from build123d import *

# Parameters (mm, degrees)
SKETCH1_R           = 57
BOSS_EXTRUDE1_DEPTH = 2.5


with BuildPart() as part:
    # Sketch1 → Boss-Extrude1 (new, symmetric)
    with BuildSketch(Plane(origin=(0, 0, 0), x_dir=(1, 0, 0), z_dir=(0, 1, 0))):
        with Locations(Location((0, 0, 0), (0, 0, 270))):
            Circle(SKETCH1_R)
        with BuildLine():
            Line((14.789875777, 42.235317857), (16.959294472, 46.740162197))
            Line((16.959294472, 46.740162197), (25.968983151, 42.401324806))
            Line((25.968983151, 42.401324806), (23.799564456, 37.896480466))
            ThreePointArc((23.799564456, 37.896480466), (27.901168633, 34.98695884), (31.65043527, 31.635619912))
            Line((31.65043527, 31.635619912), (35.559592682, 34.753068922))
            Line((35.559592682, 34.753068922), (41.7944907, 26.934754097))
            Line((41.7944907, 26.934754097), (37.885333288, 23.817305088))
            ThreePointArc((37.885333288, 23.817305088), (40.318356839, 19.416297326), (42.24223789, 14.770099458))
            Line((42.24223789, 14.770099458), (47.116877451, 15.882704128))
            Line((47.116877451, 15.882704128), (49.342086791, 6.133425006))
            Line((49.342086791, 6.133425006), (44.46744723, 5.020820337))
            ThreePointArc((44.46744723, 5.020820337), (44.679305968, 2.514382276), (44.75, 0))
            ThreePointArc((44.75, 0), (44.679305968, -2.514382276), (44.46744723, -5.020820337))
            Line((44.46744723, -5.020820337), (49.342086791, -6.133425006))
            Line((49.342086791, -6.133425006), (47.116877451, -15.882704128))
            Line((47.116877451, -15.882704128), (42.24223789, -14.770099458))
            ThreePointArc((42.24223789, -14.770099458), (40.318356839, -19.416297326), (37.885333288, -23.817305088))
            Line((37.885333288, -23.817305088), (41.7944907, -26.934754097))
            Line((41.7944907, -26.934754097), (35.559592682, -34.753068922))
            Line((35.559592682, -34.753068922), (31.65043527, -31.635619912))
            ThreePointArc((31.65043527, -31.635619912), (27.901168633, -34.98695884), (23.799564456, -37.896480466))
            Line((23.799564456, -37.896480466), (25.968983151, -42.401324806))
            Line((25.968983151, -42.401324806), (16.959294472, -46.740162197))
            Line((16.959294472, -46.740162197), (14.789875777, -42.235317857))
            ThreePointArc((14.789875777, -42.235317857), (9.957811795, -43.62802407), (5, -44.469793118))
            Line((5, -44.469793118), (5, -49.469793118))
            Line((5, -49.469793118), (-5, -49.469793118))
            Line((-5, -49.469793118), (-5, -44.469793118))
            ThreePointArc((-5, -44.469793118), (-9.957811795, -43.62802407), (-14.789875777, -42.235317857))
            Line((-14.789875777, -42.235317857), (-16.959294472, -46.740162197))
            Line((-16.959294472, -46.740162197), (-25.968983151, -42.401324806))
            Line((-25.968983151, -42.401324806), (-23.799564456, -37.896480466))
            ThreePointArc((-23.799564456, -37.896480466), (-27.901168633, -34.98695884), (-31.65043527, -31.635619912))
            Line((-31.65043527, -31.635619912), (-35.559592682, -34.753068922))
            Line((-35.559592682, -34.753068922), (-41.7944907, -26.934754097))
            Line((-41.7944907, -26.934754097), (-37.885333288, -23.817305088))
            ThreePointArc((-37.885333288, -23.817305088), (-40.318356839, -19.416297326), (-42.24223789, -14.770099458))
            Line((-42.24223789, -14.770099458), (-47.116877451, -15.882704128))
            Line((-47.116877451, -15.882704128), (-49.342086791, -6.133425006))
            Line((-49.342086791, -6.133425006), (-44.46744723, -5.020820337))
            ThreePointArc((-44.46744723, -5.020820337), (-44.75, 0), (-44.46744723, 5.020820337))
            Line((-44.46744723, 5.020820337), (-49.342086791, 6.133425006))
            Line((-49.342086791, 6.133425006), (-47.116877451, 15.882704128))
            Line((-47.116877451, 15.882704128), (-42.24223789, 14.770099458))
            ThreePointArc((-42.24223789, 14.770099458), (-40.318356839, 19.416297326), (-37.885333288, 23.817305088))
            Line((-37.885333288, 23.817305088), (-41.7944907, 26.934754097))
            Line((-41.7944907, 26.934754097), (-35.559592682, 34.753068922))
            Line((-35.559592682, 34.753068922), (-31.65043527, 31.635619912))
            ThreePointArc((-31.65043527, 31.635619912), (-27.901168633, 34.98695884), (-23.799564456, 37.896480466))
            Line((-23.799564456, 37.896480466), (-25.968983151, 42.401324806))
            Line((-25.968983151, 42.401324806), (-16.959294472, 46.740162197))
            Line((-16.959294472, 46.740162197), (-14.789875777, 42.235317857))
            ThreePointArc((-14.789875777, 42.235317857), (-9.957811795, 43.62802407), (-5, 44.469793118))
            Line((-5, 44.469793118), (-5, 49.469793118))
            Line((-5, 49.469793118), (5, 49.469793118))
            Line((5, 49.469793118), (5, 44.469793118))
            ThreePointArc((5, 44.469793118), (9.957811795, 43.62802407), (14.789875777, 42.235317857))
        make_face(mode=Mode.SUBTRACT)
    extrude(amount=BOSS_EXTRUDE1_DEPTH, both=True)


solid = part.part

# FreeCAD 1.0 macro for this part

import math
import FreeCAD as App
import Part
import Sketcher
from FreeCAD import Vector

doc = App.newDocument("Part")
body = doc.addObject("PartDesign::Body", "Body")

# Sketch on XZ plane
sketch1 = doc.addObject("Sketcher::SketchObject", "Sketch")
body.addObject(sketch1)
sketch1.AttachmentSupport = (doc.XZ_Plane, [""])
sketch1.MapMode = "FlatFace"
sketch1.addGeometry([
    Part.Circle(Vector(0, 0, 0), Vector(0, 0, 1), 57),  # 0
    Part.ArcOfCircle(Part.Circle(Vector(0, 0, 0), Vector(0, 0, 1), 44.75), math.radians(-83.584842), math.radians(-70.700873)),  # 1
    Part.LineSegment(Vector(14.789876, -42.235318, 0), Vector(16.959294, -46.740162, 0)),  # 2
    Part.LineSegment(Vector(16.959294, -46.740162, 0), Vector(25.968983, -42.401325, 0)),  # 3
    Part.LineSegment(Vector(25.968983, -42.401325, 0), Vector(23.799564, -37.89648, 0)),  # 4
    Part.ArcOfCircle(Part.Circle(Vector(0, 0, 0), Vector(0, 0, 1), 44.75), math.radians(-57.870556), math.radians(-44.986587)),  # 5
    Part.LineSegment(Vector(31.650435, -31.63562, 0), Vector(35.559593, -34.753069, 0)),  # 6
    Part.LineSegment(Vector(35.559593, -34.753069, 0), Vector(41.794491, -26.934754, 0)),  # 7
    Part.LineSegment(Vector(41.794491, -26.934754, 0), Vector(37.885333, -23.817305, 0)),  # 8
    Part.ArcOfCircle(Part.Circle(Vector(0, 0, 0), Vector(0, 0, 1), 44.75), math.radians(-32.15627), math.radians(-19.272301)),  # 9
    Part.LineSegment(Vector(42.242238, -14.770099, 0), Vector(47.116877, -15.882704, 0)),  # 10
    Part.LineSegment(Vector(47.116877, -15.882704, 0), Vector(49.342087, -6.133425, 0)),  # 11
    Part.LineSegment(Vector(49.342087, -6.133425, 0), Vector(44.467447, -5.02082, 0)),  # 12
    Part.ArcOfCircle(Part.Circle(Vector(0, 0, 0), Vector(0, 0, 1), 44.75), math.radians(-6.441984), math.radians(0)),  # 13
    Part.ArcOfCircle(Part.Circle(Vector(0, 0, 0), Vector(0, 0, 1), 44.75), math.radians(0), math.radians(6.441984)),  # 14
    Part.LineSegment(Vector(44.467447, 5.02082, 0), Vector(49.342087, 6.133425, 0)),  # 15
    Part.LineSegment(Vector(49.342087, 6.133425, 0), Vector(47.116877, 15.882704, 0)),  # 16
    Part.LineSegment(Vector(47.116877, 15.882704, 0), Vector(42.242238, 14.770099, 0)),  # 17
    Part.ArcOfCircle(Part.Circle(Vector(0, 0, 0), Vector(0, 0, 1), 44.75), math.radians(19.272301), math.radians(32.15627)),  # 18
    Part.LineSegment(Vector(37.885333, 23.817305, 0), Vector(41.794491, 26.934754, 0)),  # 19
    Part.LineSegment(Vector(41.794491, 26.934754, 0), Vector(35.559593, 34.753069, 0)),  # 20
    Part.LineSegment(Vector(35.559593, 34.753069, 0), Vector(31.650435, 31.63562, 0)),  # 21
    Part.ArcOfCircle(Part.Circle(Vector(0, 0, 0), Vector(0, 0, 1), 44.75), math.radians(44.986587), math.radians(57.870556)),  # 22
    Part.LineSegment(Vector(23.799564, 37.89648, 0), Vector(25.968983, 42.401325, 0)),  # 23
    Part.LineSegment(Vector(25.968983, 42.401325, 0), Vector(16.959294, 46.740162, 0)),  # 24
    Part.LineSegment(Vector(16.959294, 46.740162, 0), Vector(14.789876, 42.235318, 0)),  # 25
    Part.ArcOfCircle(Part.Circle(Vector(0, 0, 0), Vector(0, 0, 1), 44.75), math.radians(70.700873), math.radians(83.584842)),  # 26
    Part.LineSegment(Vector(5, 44.469793, 0), Vector(5, 49.469793, 0)),  # 27
    Part.LineSegment(Vector(5, 49.469793, 0), Vector(-5, 49.469793, 0)),  # 28
    Part.LineSegment(Vector(-5, 49.469793, 0), Vector(-5, 44.469793, 0)),  # 29
    Part.ArcOfCircle(Part.Circle(Vector(0, 0, 0), Vector(0, 0, 1), 44.75), math.radians(96.415158), math.radians(109.299127)),  # 30
    Part.LineSegment(Vector(-14.789876, 42.235318, 0), Vector(-16.959294, 46.740162, 0)),  # 31
    Part.LineSegment(Vector(-16.959294, 46.740162, 0), Vector(-25.968983, 42.401325, 0)),  # 32
    Part.LineSegment(Vector(-25.968983, 42.401325, 0), Vector(-23.799564, 37.89648, 0)),  # 33
    Part.ArcOfCircle(Part.Circle(Vector(0, 0, 0), Vector(0, 0, 1), 44.75), math.radians(122.129444), math.radians(135.013413)),  # 34
    Part.LineSegment(Vector(-31.650435, 31.63562, 0), Vector(-35.559593, 34.753069, 0)),  # 35
    Part.LineSegment(Vector(-35.559593, 34.753069, 0), Vector(-41.794491, 26.934754, 0)),  # 36
    Part.LineSegment(Vector(-41.794491, 26.934754, 0), Vector(-37.885333, 23.817305, 0)),  # 37
    Part.ArcOfCircle(Part.Circle(Vector(0, 0, 0), Vector(0, 0, 1), 44.75), math.radians(147.84373), math.radians(160.727699)),  # 38
    Part.LineSegment(Vector(-42.242238, 14.770099, 0), Vector(-47.116877, 15.882704, 0)),  # 39
    Part.LineSegment(Vector(-47.116877, 15.882704, 0), Vector(-49.342087, 6.133425, 0)),  # 40
    Part.LineSegment(Vector(-49.342087, 6.133425, 0), Vector(-44.467447, 5.02082, 0)),  # 41
    Part.ArcOfCircle(Part.Circle(Vector(0, 0, 0), Vector(0, 0, 1), 44.75), math.radians(173.558016), math.radians(186.441984)),  # 42
    Part.LineSegment(Vector(-44.467447, -5.02082, 0), Vector(-49.342087, -6.133425, 0)),  # 43
    Part.LineSegment(Vector(-49.342087, -6.133425, 0), Vector(-47.116877, -15.882704, 0)),  # 44
    Part.LineSegment(Vector(-47.116877, -15.882704, 0), Vector(-42.242238, -14.770099, 0)),  # 45
    Part.ArcOfCircle(Part.Circle(Vector(0, 0, 0), Vector(0, 0, 1), 44.75), math.radians(-160.727699), math.radians(-147.84373)),  # 46
    Part.LineSegment(Vector(-37.885333, -23.817305, 0), Vector(-41.794491, -26.934754, 0)),  # 47
    Part.LineSegment(Vector(-41.794491, -26.934754, 0), Vector(-35.559593, -34.753069, 0)),  # 48
    Part.LineSegment(Vector(-35.559593, -34.753069, 0), Vector(-31.650435, -31.63562, 0)),  # 49
    Part.ArcOfCircle(Part.Circle(Vector(0, 0, 0), Vector(0, 0, 1), 44.75), math.radians(-135.013413), math.radians(-122.129444)),  # 50
    Part.LineSegment(Vector(-23.799564, -37.89648, 0), Vector(-25.968983, -42.401325, 0)),  # 51
    Part.LineSegment(Vector(-25.968983, -42.401325, 0), Vector(-16.959294, -46.740162, 0)),  # 52
    Part.LineSegment(Vector(-16.959294, -46.740162, 0), Vector(-14.789876, -42.235318, 0)),  # 53
    Part.ArcOfCircle(Part.Circle(Vector(0, 0, 0), Vector(0, 0, 1), 44.75), math.radians(-109.299127), math.radians(-96.415158)),  # 54
    Part.LineSegment(Vector(-5, -44.469793, 0), Vector(-5, -49.469793, 0)),  # 55
    Part.LineSegment(Vector(-5, -49.469793, 0), Vector(5, -49.469793, 0)),  # 56
    Part.LineSegment(Vector(5, -49.469793, 0), Vector(5, -44.469793, 0)),  # 57
], False)
sketch1.addConstraint([
    Sketcher.Constraint("Coincident", 1, 2, 2, 1),
    Sketcher.Constraint("Coincident", 2, 2, 3, 1),
    Sketcher.Constraint("Coincident", 3, 2, 4, 1),
    Sketcher.Constraint("Coincident", 4, 2, 5, 1),
    Sketcher.Constraint("Coincident", 5, 2, 6, 1),
    Sketcher.Constraint("Coincident", 6, 2, 7, 1),
    Sketcher.Constraint("Coincident", 7, 2, 8, 1),
    Sketcher.Constraint("Coincident", 8, 2, 9, 1),
    Sketcher.Constraint("Coincident", 9, 2, 10, 1),
    Sketcher.Constraint("Coincident", 10, 2, 11, 1),
    Sketcher.Constraint("Coincident", 11, 2, 12, 1),
    Sketcher.Constraint("Coincident", 12, 2, 13, 1),
    Sketcher.Constraint("Tangent", 13, 2, 14, 1),
    Sketcher.Constraint("Coincident", 14, 2, 15, 1),
    Sketcher.Constraint("Coincident", 15, 2, 16, 1),
    Sketcher.Constraint("Coincident", 16, 2, 17, 1),
    Sketcher.Constraint("Coincident", 17, 2, 18, 1),
    Sketcher.Constraint("Coincident", 18, 2, 19, 1),
    Sketcher.Constraint("Coincident", 19, 2, 20, 1),
    Sketcher.Constraint("Coincident", 20, 2, 21, 1),
    Sketcher.Constraint("Coincident", 21, 2, 22, 1),
    Sketcher.Constraint("Coincident", 22, 2, 23, 1),
    Sketcher.Constraint("Coincident", 23, 2, 24, 1),
    Sketcher.Constraint("Coincident", 24, 2, 25, 1),
    Sketcher.Constraint("Coincident", 25, 2, 26, 1),
    Sketcher.Constraint("Coincident", 26, 2, 27, 1),
    Sketcher.Constraint("Coincident", 27, 2, 28, 1),
    Sketcher.Constraint("Coincident", 28, 2, 29, 1),
    Sketcher.Constraint("Coincident", 29, 2, 30, 1),
    Sketcher.Constraint("Coincident", 30, 2, 31, 1),
    Sketcher.Constraint("Coincident", 31, 2, 32, 1),
    Sketcher.Constraint("Coincident", 32, 2, 33, 1),
    Sketcher.Constraint("Coincident", 33, 2, 34, 1),
    Sketcher.Constraint("Coincident", 34, 2, 35, 1),
    Sketcher.Constraint("Coincident", 35, 2, 36, 1),
    Sketcher.Constraint("Coincident", 36, 2, 37, 1),
    Sketcher.Constraint("Coincident", 37, 2, 38, 1),
    Sketcher.Constraint("Coincident", 38, 2, 39, 1),
    Sketcher.Constraint("Coincident", 39, 2, 40, 1),
    Sketcher.Constraint("Coincident", 40, 2, 41, 1),
    Sketcher.Constraint("Coincident", 41, 2, 42, 1),
    Sketcher.Constraint("Coincident", 42, 2, 43, 1),
    Sketcher.Constraint("Coincident", 43, 2, 44, 1),
    Sketcher.Constraint("Coincident", 44, 2, 45, 1),
    Sketcher.Constraint("Coincident", 45, 2, 46, 1),
    Sketcher.Constraint("Coincident", 46, 2, 47, 1),
    Sketcher.Constraint("Coincident", 47, 2, 48, 1),
    Sketcher.Constraint("Coincident", 48, 2, 49, 1),
    Sketcher.Constraint("Coincident", 49, 2, 50, 1),
    Sketcher.Constraint("Coincident", 50, 2, 51, 1),
    Sketcher.Constraint("Coincident", 51, 2, 52, 1),
    Sketcher.Constraint("Coincident", 52, 2, 53, 1),
    Sketcher.Constraint("Coincident", 53, 2, 54, 1),
    Sketcher.Constraint("Coincident", 54, 2, 55, 1),
    Sketcher.Constraint("Coincident", 55, 2, 56, 1),
    Sketcher.Constraint("Coincident", 56, 2, 57, 1),
    Sketcher.Constraint("Coincident", 57, 2, 1, 1),
    Sketcher.Constraint("Vertical", 27),
    Sketcher.Constraint("Horizontal", 28),
    Sketcher.Constraint("Vertical", 29),
    Sketcher.Constraint("Vertical", 55),
    Sketcher.Constraint("Horizontal", 56),
    Sketcher.Constraint("Vertical", 57),
    Sketcher.Constraint("Coincident", 0, 3, -1, 1),
    Sketcher.Constraint("Coincident", 1, 3, -1, 1),
    Sketcher.Constraint("Coincident", 5, 3, -1, 1),
    Sketcher.Constraint("Coincident", 9, 3, -1, 1),
    Sketcher.Constraint("Coincident", 13, 3, -1, 1),
    Sketcher.Constraint("Coincident", 18, 3, -1, 1),
    Sketcher.Constraint("Coincident", 22, 3, -1, 1),
    Sketcher.Constraint("Coincident", 26, 3, -1, 1),
    Sketcher.Constraint("Coincident", 30, 3, -1, 1),
    Sketcher.Constraint("Coincident", 34, 3, -1, 1),
    Sketcher.Constraint("Coincident", 38, 3, -1, 1),
    Sketcher.Constraint("Coincident", 42, 3, -1, 1),
    Sketcher.Constraint("Coincident", 46, 3, -1, 1),
    Sketcher.Constraint("Coincident", 50, 3, -1, 1),
    Sketcher.Constraint("Coincident", 54, 3, -1, 1),
    Sketcher.Constraint("Equal", 1, 5),
    Sketcher.Constraint("Equal", 5, 9),
    Sketcher.Constraint("Equal", 9, 13),
    Sketcher.Constraint("Equal", 13, 14),
    Sketcher.Constraint("Equal", 14, 18),
    Sketcher.Constraint("Equal", 18, 22),
    Sketcher.Constraint("Equal", 22, 26),
    Sketcher.Constraint("Equal", 26, 30),
    Sketcher.Constraint("Equal", 30, 34),
    Sketcher.Constraint("Equal", 34, 38),
    Sketcher.Constraint("Equal", 38, 42),
    Sketcher.Constraint("Equal", 42, 46),
    Sketcher.Constraint("Equal", 46, 50),
    Sketcher.Constraint("Equal", 50, 54),
    Sketcher.Constraint("Symmetric", 2, 2, 31, 2, -1, 1),
    Sketcher.Constraint("Symmetric", 3, 2, 32, 2, -1, 1),
    Sketcher.Constraint("Symmetric", 6, 2, 35, 2, -1, 1),
    Sketcher.Constraint("Symmetric", 7, 2, 36, 2, -1, 1),
    Sketcher.Constraint("Symmetric", 10, 2, 39, 2, -1, 1),
    Sketcher.Constraint("Symmetric", 11, 2, 40, 2, -1, 1),
    Sketcher.Constraint("Symmetric", 15, 2, 43, 2, -1, 1),
    Sketcher.Constraint("Symmetric", 16, 2, 44, 2, -1, 1),
    Sketcher.Constraint("Symmetric", 19, 2, 47, 2, -1, 1),
    Sketcher.Constraint("Symmetric", 20, 2, 48, 2, -1, 1),
    Sketcher.Constraint("Symmetric", 23, 2, 51, 2, -1, 1),
    Sketcher.Constraint("Symmetric", 24, 2, 52, 2, -1, 1),
    Sketcher.Constraint("Symmetric", 27, 2, 55, 2, -1, 1),
    Sketcher.Constraint("Symmetric", 24, 2, 31, 2, -2),
    Sketcher.Constraint("Symmetric", 23, 2, 32, 2, -2),
    Sketcher.Constraint("Symmetric", 20, 2, 35, 2, -2),
    Sketcher.Constraint("Symmetric", 19, 2, 36, 2, -2),
    Sketcher.Constraint("Symmetric", 16, 2, 39, 2, -2),
    Sketcher.Constraint("Symmetric", 15, 2, 40, 2, -2),
    Sketcher.Constraint("PointOnObject", 13, 2, -1),
    Sketcher.Constraint("Perpendicular", 2, 3),
    Sketcher.Constraint("Perpendicular", 3, 4),
    Sketcher.Constraint("Perpendicular", 6, 7),
    Sketcher.Constraint("Perpendicular", 7, 8),
    Sketcher.Constraint("Perpendicular", 10, 11),
    Sketcher.Constraint("Perpendicular", 11, 12),
    Sketcher.Constraint("Perpendicular", 15, 16),
    Sketcher.Constraint("Perpendicular", 16, 17),
    Sketcher.Constraint("Perpendicular", 19, 20),
    Sketcher.Constraint("Perpendicular", 20, 21),
    Sketcher.Constraint("Perpendicular", 23, 24),
    Sketcher.Constraint("Perpendicular", 24, 25),
    Sketcher.Constraint("Parallel", 4, 31),
    Sketcher.Constraint("Perpendicular", 32, 33),
    Sketcher.Constraint("Parallel", 8, 35),
    Sketcher.Constraint("Perpendicular", 36, 37),
    Sketcher.Constraint("Parallel", 12, 39),
    Sketcher.Constraint("Perpendicular", 40, 41),
    Sketcher.Constraint("Parallel", 17, 43),
    Sketcher.Constraint("Perpendicular", 44, 45),
    Sketcher.Constraint("Parallel", 21, 47),
    Sketcher.Constraint("Perpendicular", 48, 49),
    Sketcher.Constraint("Parallel", 25, 51),
    Sketcher.Constraint("Perpendicular", 52, 53),
    Sketcher.Constraint("Horizontal", 26, 2, 29, 2),
    Sketcher.Constraint("Horizontal", 54, 2, 57, 2),
    Sketcher.Constraint("Equal", 2, 4),
    Sketcher.Constraint("Equal", 4, 6),
    Sketcher.Constraint("Equal", 3, 7),
    Sketcher.Constraint("Equal", 6, 8),
    Sketcher.Constraint("Equal", 8, 10),
    Sketcher.Constraint("Equal", 7, 11),
    Sketcher.Constraint("Equal", 10, 12),
    Sketcher.Constraint("Diameter", 0, 114.0),
    Sketcher.Constraint("DistanceX", 28, 2, 28, 1, 10.0),
    Sketcher.Constraint("DistanceY", 27, 1, 27, 2, 5.0),
    Sketcher.Constraint("Radius", 1, 44.75),
    Sketcher.Constraint("Distance", 2, 5.0),
    Sketcher.Constraint("Distance", 3, 10.0),
    Sketcher.Constraint("DistanceY", 9, 2, -1, 1, 14.770099),
    Sketcher.Constraint("DistanceY", 4, 2, -1, 1, 37.89648),
    Sketcher.Constraint("DistanceY", 5, 2, -1, 1, 31.63562),
])
pad1 = doc.addObject("PartDesign::Pad", "Pad")
body.addObject(pad1)
pad1.Profile = sketch1
pad1.Length = 5
pad1.Midplane = True

doc.recompute()
